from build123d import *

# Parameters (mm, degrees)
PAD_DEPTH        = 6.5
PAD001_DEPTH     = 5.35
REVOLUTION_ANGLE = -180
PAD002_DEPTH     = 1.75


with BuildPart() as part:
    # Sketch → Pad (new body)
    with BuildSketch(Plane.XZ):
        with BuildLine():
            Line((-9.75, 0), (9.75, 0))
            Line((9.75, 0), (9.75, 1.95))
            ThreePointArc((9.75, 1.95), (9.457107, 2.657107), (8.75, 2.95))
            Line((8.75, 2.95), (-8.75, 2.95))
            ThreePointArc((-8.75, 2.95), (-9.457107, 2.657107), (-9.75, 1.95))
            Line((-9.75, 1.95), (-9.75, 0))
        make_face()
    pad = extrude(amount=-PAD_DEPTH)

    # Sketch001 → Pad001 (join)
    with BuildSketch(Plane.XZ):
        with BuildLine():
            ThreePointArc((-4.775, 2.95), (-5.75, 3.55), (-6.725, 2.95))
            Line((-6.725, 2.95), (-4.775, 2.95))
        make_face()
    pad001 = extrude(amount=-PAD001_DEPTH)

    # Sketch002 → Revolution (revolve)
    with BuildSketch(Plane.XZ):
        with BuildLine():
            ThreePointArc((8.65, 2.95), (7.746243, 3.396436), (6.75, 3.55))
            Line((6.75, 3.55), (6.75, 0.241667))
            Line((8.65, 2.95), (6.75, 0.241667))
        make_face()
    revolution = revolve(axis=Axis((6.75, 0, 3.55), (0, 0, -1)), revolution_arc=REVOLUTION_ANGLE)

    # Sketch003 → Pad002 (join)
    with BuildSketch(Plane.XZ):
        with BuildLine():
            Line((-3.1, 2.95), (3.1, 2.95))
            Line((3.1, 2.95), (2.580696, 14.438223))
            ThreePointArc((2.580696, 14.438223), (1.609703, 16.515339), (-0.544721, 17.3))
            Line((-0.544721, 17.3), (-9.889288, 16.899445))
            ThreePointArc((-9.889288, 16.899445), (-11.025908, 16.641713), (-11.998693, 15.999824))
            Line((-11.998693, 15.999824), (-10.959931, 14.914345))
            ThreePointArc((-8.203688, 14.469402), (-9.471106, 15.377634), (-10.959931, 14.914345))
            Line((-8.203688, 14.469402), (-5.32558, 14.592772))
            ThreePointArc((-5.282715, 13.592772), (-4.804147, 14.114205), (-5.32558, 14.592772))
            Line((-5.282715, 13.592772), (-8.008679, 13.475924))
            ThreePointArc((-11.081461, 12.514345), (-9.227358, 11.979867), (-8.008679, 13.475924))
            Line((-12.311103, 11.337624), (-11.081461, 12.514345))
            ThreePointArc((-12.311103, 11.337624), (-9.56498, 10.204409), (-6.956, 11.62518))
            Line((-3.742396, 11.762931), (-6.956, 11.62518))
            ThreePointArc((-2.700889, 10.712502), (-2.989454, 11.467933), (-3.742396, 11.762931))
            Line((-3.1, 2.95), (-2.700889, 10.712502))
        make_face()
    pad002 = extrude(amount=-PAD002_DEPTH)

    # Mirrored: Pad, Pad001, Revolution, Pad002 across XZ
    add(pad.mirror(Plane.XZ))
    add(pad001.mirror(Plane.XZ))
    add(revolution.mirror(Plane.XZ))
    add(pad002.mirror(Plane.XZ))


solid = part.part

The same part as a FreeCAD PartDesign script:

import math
import FreeCAD as App
import Part
import Sketcher
from FreeCAD import Vector
Q = App.Units.Quantity

doc = App.newDocument("Part")
body = doc.addObject("PartDesign::Body", "Body")

# Sketch on XZ plane
sketch1 = body.newObject("Sketcher::SketchObject", "Sketch")
sketch1.AttachmentSupport = (doc.getObject("XZ_Plane"), [""])
sketch1.MapMode = "FlatFace"
sketch1.addGeometry([
    Part.LineSegment(Vector(-9.8, 0, 0), Vector(9.8, 0, 0)),  # 0
    Part.LineSegment(Vector(9.8, 0, 0), Vector(9.8, 1.9, 0)),  # 1
    Part.ArcOfCircle(Part.Circle(Vector(8.8, 2, 0), Vector(0, 0, 1), 1), math.radians(0), math.radians(90)),  # 2
    Part.LineSegment(Vector(8.8, 3, 0), Vector(-8.8, 3, 0)),  # 3
    Part.ArcOfCircle(Part.Circle(Vector(-8.8, 2, 0), Vector(0, 0, 1), 1), math.radians(90), math.radians(180)),  # 4
    Part.LineSegment(Vector(-9.8, 1.9, 0), Vector(-9.8, 0, 0)),  # 5
], False)
sketch1.addConstraint([
    Sketcher.Constraint("Coincident", 0, 2, 1, 1),
    Sketcher.Constraint("Tangent", 1, 2, 2, 1),
    Sketcher.Constraint("Tangent", 2, 2, 3, 1),
    Sketcher.Constraint("Tangent", 3, 2, 4, 1),
    Sketcher.Constraint("Tangent", 4, 2, 5, 1),
    Sketcher.Constraint("Coincident", 5, 2, 0, 1),
    Sketcher.Constraint("Horizontal", 0),
    Sketcher.Constraint("Vertical", 1),
    Sketcher.Constraint("Horizontal", 3),
    Sketcher.Constraint("Vertical", 5),
    Sketcher.Constraint("Equal", 2, 4),
    Sketcher.Constraint("Symmetric", 0, 2, 5, 2, -1, 1),
    Sketcher.Constraint("Radius", 2, Q("0.999999 mm")),
    Sketcher.Constraint("DistanceX", 0, 1, 0, 2, Q("19.5 mm")),
    Sketcher.Constraint("DistanceY", 1, 1, 1, 2, Q("1.95 mm")),
])
pad1 = body.newObject("PartDesign::Pad", "Pad")
pad1.Profile = sketch1
pad1.Length = 6.5
pad1.Reversed = True

# Sketch on XZ plane
sketch2 = body.newObject("Sketcher::SketchObject", "Sketch001")
sketch2.AttachmentSupport = (doc.getObject("XZ_Plane"), [""])
sketch2.MapMode = "FlatFace"
sketch2.addGeometry([
    Part.ArcOfCircle(Part.Circle(Vector(-5.8, 2.5, 0), Vector(0, 0, 1), 1.1), math.radians(27), math.radians(153)),
    Part.LineSegment(Vector(-6.7, 3, 0), Vector(-4.8, 3, 0)),
], False)
sketch2.addConstraint([
    Sketcher.Constraint("Coincident", 0, 1, 1, 2),
    Sketcher.Constraint("Coincident", 1, 1, 0, 2),
    Sketcher.Constraint("Horizontal", 1),
    Sketcher.Constraint("DistanceX", 1, 1, 1, 2, Q("1.95 mm")),
    Sketcher.Constraint("DistanceX", 0, 3, -1, 1, Q("5.75 mm")),
    Sketcher.Constraint("DistanceY", -1, 1, 0, 1, Q("2.95 mm")),
    Sketcher.Constraint("Radius", 0, Q("1.092188 mm")),
])
pad2 = body.newObject("PartDesign::Pad", "Pad001")
pad2.Profile = sketch2
pad2.Length = 5.35
pad2.Reversed = True

# Sketch on XZ plane
sketch3 = body.newObject("Sketcher::SketchObject", "Sketch002")
sketch3.AttachmentSupport = (doc.getObject("XZ_Plane"), [""])
sketch3.MapMode = "FlatFace"
sketch3.addGeometry([
    Part.ArcOfCircle(Part.Circle(Vector(6.8, 0.2, 0), Vector(0, 0, 1), 3.3), math.radians(55), math.radians(90)),
    Part.LineSegment(Vector(6.8, 3.5, 0), Vector(6.8, 0.2, 0)),
    Part.LineSegment(Vector(6.8, 0.2, 0), Vector(8.7, 3, 0)),
], False)
sketch3.addGeometry(Part.LineSegment(Vector(6.8, 3.5, 0), Vector(6.8, 0.2, 0)), True)  # axis
sketch3.addConstraint([
    Sketcher.Constraint("Coincident", 0, 2, 1, 1),
    Sketcher.Constraint("Coincident", 1, 2, 2, 1),
    Sketcher.Constraint("Coincident", 2, 2, 0, 1),
    Sketcher.Constraint("Vertical", 1),
    Sketcher.Constraint("Vertical", 3),
    Sketcher.Constraint("Coincident", 1, 2, 0, 3),
    Sketcher.Constraint("Coincident", 3, 1, 0, 2),
    Sketcher.Constraint("Equal", 1, 3),
    Sketcher.Constraint("DistanceX", 0, 2, 2, 2, Q("1.9 mm")),
    Sketcher.Constraint("DistanceY", 2, 2, 0, 2, Q("0.6 mm")),
    Sketcher.Constraint("DistanceX", -1, 1, 0, 3, Q("6.75 mm")),
    Sketcher.Constraint("DistanceY", -1, 1, 0, 2, Q("3.55 mm")),
])
revolution = body.newObject("PartDesign::Revolution", "Revolution")
revolution.Profile = sketch3
revolution.ReferenceAxis = (sketch3, ["Axis0"])
revolution.Angle = 180
revolution.Reversed = True

# Sketch on XZ plane
sketch4 = body.newObject("Sketcher::SketchObject", "Sketch003")
sketch4.AttachmentSupport = (doc.getObject("XZ_Plane"), [""])
sketch4.MapMode = "FlatFace"
sketch4.addGeometry([
    Part.LineSegment(Vector(-3.1, 3, 0), Vector(3.1, 3, 0)),  # 0
    Part.LineSegment(Vector(3.1, 3, 0), Vector(2.6, 14.4, 0)),  # 1
    Part.ArcOfCircle(Part.Circle(Vector(-0.4, 14.3, 0), Vector(0, 0, 1), 3), math.radians(3), math.radians(92)),  # 2
    Part.LineSegment(Vector(-0.5, 17.3, 0), Vector(-9.9, 16.9, 0)),  # 3
    Part.ArcOfCircle(Part.Circle(Vector(-9.7, 13.6, 0), Vector(0, 0, 1), 3.3), math.radians(92), math.radians(134)),  # 4
    Part.LineSegment(Vector(-12, 16, 0), Vector(-11, 14.9, 0)),  # 5
    Part.ArcOfCircle(Part.Circle(Vector(-9.8, 13.7, 0), Vector(0, 0, 1), 1.8), math.radians(28), math.radians(134)),  # 6
    Part.LineSegment(Vector(-8.2, 14.5, 0), Vector(-5.3, 14.6, 0)),  # 7
    Part.ArcOfCircle(Part.Circle(Vector(-5.3, 14.1, 0), Vector(0, 0, 1), 0.5), math.radians(-88), math.radians(92)),  # 8
    Part.LineSegment(Vector(-5.3, 13.6, 0), Vector(-8, 13.5, 0)),  # 9
    Part.ArcOfCircle(Part.Circle(Vector(-9.8, 13.7, 0), Vector(0, 0, 1), 1.8), math.radians(-140), math.radians(-6)),  # 10
    Part.LineSegment(Vector(-11.1, 12.5, 0), Vector(-12.3, 11.3, 0)),  # 11
    Part.ArcOfCircle(Part.Circle(Vector(-9.7, 13.7, 0), Vector(0, 0, 1), 3.5), math.radians(-138), math.radians(-36)),  # 12
    Part.LineSegment(Vector(-7, 11.6, 0), Vector(-3.7, 11.8, 0)),  # 13
    Part.ArcOfCircle(Part.Circle(Vector(-3.7, 10.8, 0), Vector(0, 0, 1), 1), math.radians(-3), math.radians(92)),  # 14
    Part.LineSegment(Vector(-2.7, 10.7, 0), Vector(-3.1, 3, 0)),  # 15
], False)
sketch4.addConstraint([
    Sketcher.Constraint("Coincident", 0, 2, 1, 1),
    Sketcher.Constraint("Tangent", 1, 2, 2, 1),
    Sketcher.Constraint("Tangent", 2, 2, 3, 1),
    Sketcher.Constraint("Tangent", 3, 2, 4, 1),
    Sketcher.Constraint("Coincident", 4, 2, 5, 1),
    Sketcher.Constraint("Coincident", 5, 2, 6, 2),
    Sketcher.Constraint("Coincident", 6, 1, 7, 1),
    Sketcher.Constraint("Tangent", 7, 2, 8, 2),
    Sketcher.Constraint("Tangent", 8, 1, 9, 1),
    Sketcher.Constraint("Coincident", 9, 2, 10, 2),
    Sketcher.Constraint("Coincident", 10, 1, 11, 1),
    Sketcher.Constraint("Coincident", 11, 2, 12, 1),
    Sketcher.Constraint("Coincident", 12, 2, 13, 1),
    Sketcher.Constraint("Tangent", 13, 2, 14, 2),
    Sketcher.Constraint("Tangent", 14, 1, 15, 1),
    Sketcher.Constraint("Coincident", 15, 2, 0, 1),
    Sketcher.Constraint("Horizontal", 0),
    Sketcher.Constraint("Coincident", 10, 3, 6, 3),
    Sketcher.Constraint("Coincident", 12, 3, 6, 3),
    Sketcher.Constraint("Equal", 6, 10),
    Sketcher.Constraint("Parallel", 3, 7),
    Sketcher.Constraint("Parallel", 7, 9),
    Sketcher.Constraint("Perpendicular", 5, 11),
    Sketcher.Constraint("Parallel", 9, 13),
    Sketcher.Constraint("Radius", 2, Q("3 mm")),
    Sketcher.Constraint("Radius", 14, Q("1 mm")),
    Sketcher.Constraint("Radius", 6, Q("1.75 mm")),
    Sketcher.Constraint("DistanceX", 0, 1, 0, 2, Q("6.2 mm")),
    Sketcher.Constraint("DistanceY", 8, 1, 7, 2, Q("1 mm")),
    Sketcher.Constraint("DistanceX", -1, 1, 0, 2, Q("3.1 mm")),
    Sketcher.Constraint("DistanceY", -1, 1, 2, 2, Q("17.3 mm")),
    Sketcher.Constraint("DistanceY", 0, 2, 6, 3, Q("10.7 mm")),
    Sketcher.Constraint("DistanceY", 10, 1, 5, 2, Q("2.4 mm")),
    Sketcher.Constraint("DistanceX", 6, 3, -1, 1, Q("9.75 mm")),
    Sketcher.Constraint("DistanceY", -1, 1, 6, 3, Q("13.65 mm")),
    Sketcher.Constraint("Radius", 4, Q("3.252441 mm")),
    Sketcher.Constraint("DistanceX", 12, 2, -1, 1, Q("6.956 mm")),
    Sketcher.Constraint("Radius", 12, Q("3.450556 mm")),
    Sketcher.Constraint("DistanceY", -1, 1, 6, 1, Q("14.469402 mm")),
    Sketcher.Constraint("DistanceX", 4, 2, 4, 3, Q("2.248698 mm")),
    Sketcher.Constraint("Distance", 5, Q("1.502428 mm")),
    Sketcher.Constraint("Distance", 7, Q("2.880751 mm")),
    Sketcher.Constraint("DistanceX", 14, 3, -1, 1, Q("3.69957 mm")),
    Sketcher.Constraint("DistanceY", -1, 1, 14, 3, Q("10.763848 mm")),
    Sketcher.Constraint("DistanceX", 2, 2, -1, 1, Q("0.544721 mm")),
    Sketcher.Constraint("DistanceX", 5, 2, -1, 1, Q("10.959931 mm")),
])
pad3 = body.newObject("PartDesign::Pad", "Pad002")
pad3.Profile = sketch4
pad3.Length = 1.75
pad3.Reversed = True
doc.recompute()

mirrored = body.newObject("PartDesign::Mirrored", "Mirrored")
mirrored.Originals = [pad1, pad2, revolution, pad3]
mirrored.MirrorPlane = (doc.getObject("XZ_Plane"), [""])
body.Tip = mirrored

doc.recompute()
